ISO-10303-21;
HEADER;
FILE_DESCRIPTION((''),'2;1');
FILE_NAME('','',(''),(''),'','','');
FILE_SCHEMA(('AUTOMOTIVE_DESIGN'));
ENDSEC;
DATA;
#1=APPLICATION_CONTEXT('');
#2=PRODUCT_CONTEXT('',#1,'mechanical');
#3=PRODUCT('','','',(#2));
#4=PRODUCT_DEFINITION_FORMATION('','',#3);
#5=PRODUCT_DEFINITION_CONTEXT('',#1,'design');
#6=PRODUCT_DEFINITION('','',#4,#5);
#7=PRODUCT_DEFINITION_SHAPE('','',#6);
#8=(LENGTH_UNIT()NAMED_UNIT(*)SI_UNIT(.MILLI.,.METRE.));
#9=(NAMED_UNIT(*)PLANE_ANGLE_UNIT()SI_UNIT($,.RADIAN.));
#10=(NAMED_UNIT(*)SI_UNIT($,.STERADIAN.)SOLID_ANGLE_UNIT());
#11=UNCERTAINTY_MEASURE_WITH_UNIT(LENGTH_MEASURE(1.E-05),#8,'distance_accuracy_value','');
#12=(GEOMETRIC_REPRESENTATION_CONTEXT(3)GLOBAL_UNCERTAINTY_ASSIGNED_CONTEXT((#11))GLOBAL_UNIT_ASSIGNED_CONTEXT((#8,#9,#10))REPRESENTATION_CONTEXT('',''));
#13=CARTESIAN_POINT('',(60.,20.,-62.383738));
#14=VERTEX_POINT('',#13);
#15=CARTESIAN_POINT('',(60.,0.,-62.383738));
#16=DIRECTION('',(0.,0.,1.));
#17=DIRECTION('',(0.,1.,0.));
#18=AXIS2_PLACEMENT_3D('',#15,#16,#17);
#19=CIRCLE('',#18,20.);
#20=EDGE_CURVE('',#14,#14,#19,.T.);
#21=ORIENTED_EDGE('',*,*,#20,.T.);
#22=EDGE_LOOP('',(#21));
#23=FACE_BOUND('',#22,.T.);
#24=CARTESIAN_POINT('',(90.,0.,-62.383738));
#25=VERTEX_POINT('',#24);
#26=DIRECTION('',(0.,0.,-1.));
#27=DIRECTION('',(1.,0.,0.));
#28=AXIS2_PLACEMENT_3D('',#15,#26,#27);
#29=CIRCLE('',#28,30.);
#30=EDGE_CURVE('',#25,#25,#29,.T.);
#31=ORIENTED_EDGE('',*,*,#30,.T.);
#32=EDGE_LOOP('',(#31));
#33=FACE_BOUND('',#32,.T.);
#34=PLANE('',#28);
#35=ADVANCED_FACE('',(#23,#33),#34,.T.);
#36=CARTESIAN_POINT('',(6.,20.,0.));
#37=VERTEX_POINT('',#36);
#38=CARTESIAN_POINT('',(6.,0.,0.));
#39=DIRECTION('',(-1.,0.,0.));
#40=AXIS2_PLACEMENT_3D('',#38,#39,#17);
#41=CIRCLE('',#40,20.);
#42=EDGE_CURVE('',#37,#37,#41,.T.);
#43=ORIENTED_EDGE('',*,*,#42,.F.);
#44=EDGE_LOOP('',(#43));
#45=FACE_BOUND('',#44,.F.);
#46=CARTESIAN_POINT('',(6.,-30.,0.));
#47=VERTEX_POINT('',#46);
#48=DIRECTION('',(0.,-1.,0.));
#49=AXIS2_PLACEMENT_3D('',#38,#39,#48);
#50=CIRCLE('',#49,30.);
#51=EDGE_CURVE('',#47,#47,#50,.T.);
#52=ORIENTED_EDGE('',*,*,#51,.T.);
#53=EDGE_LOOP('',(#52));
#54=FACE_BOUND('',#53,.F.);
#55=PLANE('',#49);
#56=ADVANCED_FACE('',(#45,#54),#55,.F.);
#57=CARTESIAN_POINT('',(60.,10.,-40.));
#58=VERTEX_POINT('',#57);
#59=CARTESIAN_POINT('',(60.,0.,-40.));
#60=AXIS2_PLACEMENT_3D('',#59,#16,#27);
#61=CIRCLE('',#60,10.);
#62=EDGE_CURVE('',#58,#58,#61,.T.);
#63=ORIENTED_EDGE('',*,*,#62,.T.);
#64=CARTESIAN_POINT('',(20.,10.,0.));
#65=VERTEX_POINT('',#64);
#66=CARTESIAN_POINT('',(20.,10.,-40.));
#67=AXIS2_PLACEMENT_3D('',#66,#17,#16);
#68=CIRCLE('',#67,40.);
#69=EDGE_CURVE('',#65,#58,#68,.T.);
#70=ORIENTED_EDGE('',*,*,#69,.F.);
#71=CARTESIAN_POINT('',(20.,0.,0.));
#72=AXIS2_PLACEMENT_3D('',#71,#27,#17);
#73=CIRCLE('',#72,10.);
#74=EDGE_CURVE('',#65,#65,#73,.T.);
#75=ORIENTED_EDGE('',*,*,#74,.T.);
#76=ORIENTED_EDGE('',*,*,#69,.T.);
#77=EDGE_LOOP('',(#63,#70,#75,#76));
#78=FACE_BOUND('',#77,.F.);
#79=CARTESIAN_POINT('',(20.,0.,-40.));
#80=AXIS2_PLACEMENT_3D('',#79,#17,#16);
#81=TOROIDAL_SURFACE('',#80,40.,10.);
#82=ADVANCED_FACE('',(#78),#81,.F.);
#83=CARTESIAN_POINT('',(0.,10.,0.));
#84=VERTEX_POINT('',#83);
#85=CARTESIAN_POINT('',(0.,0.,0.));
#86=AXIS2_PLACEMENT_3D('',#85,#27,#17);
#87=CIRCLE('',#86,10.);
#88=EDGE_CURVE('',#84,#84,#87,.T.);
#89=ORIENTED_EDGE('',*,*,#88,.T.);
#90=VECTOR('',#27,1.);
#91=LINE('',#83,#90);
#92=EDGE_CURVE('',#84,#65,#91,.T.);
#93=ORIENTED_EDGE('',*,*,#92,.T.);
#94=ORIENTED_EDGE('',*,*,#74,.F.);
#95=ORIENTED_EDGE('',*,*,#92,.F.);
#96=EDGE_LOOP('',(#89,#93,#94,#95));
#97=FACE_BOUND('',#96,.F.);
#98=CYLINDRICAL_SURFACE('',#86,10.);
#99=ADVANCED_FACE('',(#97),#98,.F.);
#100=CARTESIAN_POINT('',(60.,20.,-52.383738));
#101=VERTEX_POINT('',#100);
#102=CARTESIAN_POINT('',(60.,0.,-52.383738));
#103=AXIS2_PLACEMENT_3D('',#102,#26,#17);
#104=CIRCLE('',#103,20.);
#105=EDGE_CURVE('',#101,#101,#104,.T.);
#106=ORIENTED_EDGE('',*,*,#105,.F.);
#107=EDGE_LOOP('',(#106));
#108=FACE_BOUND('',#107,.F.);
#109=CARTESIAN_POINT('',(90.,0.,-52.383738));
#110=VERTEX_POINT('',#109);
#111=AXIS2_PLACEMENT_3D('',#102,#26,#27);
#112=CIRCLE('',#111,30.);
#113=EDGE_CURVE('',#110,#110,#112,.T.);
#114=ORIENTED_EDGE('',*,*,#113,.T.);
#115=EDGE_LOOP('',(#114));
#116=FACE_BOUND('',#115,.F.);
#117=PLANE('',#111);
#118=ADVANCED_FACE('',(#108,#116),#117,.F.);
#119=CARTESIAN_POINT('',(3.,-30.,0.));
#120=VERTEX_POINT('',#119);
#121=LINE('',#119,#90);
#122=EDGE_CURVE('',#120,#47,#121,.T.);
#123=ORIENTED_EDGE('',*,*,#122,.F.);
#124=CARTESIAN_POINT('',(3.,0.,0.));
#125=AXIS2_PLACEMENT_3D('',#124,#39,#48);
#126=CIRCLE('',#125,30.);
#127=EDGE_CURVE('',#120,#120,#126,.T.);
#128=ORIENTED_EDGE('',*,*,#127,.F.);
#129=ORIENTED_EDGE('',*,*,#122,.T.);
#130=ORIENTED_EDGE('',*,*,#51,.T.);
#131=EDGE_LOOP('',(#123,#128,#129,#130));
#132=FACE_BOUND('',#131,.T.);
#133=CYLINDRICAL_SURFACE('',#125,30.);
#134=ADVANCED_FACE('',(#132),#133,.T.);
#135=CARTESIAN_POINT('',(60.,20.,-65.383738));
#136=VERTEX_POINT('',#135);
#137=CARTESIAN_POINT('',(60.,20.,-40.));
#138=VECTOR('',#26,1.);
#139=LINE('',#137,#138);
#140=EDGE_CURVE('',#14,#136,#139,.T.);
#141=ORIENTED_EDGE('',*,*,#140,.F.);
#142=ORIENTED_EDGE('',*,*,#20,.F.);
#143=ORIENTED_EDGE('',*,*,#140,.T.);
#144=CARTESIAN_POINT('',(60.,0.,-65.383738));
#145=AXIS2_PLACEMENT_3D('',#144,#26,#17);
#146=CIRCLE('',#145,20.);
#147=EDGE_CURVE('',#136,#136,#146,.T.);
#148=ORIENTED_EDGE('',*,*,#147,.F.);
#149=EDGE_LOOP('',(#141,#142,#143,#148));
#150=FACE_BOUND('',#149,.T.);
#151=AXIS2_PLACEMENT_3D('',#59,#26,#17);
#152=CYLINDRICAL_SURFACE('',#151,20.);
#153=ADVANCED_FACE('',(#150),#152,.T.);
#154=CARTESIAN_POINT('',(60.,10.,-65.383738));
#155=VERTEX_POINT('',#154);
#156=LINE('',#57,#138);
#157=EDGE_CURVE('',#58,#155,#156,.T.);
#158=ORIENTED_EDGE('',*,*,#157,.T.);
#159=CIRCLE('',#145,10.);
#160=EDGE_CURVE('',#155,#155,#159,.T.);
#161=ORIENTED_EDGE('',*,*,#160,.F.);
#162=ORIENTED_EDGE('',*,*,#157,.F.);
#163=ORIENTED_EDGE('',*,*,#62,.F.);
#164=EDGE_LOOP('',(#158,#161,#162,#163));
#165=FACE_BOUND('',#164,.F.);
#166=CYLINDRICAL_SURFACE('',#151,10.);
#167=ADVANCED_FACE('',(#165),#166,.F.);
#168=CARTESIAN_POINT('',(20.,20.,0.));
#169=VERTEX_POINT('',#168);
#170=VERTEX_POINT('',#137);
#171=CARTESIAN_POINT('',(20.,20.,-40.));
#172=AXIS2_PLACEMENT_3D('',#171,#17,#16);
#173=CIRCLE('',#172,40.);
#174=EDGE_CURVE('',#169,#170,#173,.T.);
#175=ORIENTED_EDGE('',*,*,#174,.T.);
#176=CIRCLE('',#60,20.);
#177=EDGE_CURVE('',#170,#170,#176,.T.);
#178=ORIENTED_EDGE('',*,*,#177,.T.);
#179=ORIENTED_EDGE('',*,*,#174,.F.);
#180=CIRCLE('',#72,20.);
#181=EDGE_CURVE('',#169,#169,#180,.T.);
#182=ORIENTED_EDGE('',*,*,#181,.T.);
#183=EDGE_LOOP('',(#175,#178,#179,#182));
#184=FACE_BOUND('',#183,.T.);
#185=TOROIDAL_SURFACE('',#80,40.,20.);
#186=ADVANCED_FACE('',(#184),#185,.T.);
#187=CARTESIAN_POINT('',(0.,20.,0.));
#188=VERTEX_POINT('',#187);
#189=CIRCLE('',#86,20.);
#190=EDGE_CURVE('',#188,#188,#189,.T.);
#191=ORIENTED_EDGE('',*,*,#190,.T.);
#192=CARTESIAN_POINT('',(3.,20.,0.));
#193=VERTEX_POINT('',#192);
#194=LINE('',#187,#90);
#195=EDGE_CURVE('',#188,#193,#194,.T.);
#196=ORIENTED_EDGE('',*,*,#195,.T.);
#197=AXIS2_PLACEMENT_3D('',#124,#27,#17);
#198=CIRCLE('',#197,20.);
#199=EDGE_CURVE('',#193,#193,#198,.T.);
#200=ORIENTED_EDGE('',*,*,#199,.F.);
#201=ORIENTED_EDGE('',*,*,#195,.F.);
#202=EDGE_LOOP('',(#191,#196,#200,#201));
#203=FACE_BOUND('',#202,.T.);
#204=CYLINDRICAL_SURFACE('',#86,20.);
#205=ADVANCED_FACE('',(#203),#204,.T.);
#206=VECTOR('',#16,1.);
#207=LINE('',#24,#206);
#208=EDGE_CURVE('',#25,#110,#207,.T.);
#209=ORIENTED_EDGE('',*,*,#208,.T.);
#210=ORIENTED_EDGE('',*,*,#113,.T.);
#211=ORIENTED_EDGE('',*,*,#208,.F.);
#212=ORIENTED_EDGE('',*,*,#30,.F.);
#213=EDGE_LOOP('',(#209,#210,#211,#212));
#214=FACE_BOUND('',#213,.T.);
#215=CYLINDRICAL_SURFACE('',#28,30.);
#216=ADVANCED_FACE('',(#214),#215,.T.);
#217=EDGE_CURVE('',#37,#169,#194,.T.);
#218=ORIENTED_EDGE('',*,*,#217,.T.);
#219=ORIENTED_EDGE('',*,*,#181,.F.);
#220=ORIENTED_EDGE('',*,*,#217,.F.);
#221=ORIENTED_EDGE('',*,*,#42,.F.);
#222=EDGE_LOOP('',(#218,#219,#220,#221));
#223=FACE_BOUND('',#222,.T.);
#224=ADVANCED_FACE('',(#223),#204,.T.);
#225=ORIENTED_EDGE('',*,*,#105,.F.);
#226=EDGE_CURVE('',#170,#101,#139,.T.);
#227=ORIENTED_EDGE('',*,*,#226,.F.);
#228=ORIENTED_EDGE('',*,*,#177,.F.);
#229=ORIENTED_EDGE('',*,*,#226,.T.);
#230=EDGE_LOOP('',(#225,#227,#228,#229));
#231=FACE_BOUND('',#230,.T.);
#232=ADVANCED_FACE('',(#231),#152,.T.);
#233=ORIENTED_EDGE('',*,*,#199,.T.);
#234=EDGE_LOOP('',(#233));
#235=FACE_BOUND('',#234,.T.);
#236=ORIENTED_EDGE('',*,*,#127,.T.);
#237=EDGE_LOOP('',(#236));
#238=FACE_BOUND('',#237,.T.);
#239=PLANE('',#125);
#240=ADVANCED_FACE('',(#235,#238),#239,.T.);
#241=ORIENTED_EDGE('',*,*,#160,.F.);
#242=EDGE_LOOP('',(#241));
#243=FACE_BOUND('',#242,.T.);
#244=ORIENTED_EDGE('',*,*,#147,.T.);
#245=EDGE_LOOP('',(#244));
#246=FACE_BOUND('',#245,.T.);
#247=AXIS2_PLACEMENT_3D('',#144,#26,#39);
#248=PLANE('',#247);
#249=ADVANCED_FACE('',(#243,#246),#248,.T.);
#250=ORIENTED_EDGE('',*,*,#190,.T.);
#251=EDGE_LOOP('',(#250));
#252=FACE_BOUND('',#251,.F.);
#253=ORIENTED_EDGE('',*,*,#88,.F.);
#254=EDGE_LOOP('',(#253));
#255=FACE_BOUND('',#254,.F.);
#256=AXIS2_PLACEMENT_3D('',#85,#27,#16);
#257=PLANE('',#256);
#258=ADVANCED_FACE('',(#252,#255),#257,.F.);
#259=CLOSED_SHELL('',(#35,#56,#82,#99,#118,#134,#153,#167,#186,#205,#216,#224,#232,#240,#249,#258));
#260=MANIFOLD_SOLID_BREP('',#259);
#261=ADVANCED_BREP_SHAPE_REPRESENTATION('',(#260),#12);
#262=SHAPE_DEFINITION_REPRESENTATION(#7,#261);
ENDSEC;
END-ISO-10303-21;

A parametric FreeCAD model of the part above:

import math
import FreeCAD as App
import Part
import Sketcher

V = App.Vector

doc = App.newDocument("Part")
body = doc.addObject("PartDesign::Body", "Body")

# Sketch on YZ plane
sketch1 = doc.addObject("Sketcher::SketchObject", "Sketch")
body.addObject(sketch1)
sketch1.AttachmentSupport = (doc.YZ_Plane, [""])
sketch1.MapMode = "FlatFace"
sketch1.addGeometry([
    Part.Circle(V(0, 0, 0), V(0, 0, 1), 20),
    Part.Circle(V(0, 0, 0), V(0, 0, 1), 10),
], False)
sketch1.addConstraint([
    Sketcher.Constraint("Coincident", 0, 3, -1, 1),
    Sketcher.Constraint("Coincident", 1, 3, -1, 1),
    Sketcher.Constraint("Diameter", 0, 40.0),
    Sketcher.Constraint("Diameter", 1, 20.0),
])

# Sketch on XZ plane
sketch2 = doc.addObject("Sketcher::SketchObject", "Sketch001")
body.addObject(sketch2)
sketch2.AttachmentSupport = (doc.XZ_Plane, [""])
sketch2.MapMode = "FlatFace"
sketch2.addGeometry([
    Part.LineSegment(V(0, 0, 0), V(20, 0, 0)),
    Part.ArcOfCircle(Part.Circle(V(20, -40, 0), V(0, 0, 1), 40), math.radians(0), math.radians(90)),
    Part.LineSegment(V(60, -40, 0), V(60, -65, 0)),
], False)
sketch2.addConstraint([
    Sketcher.Constraint("Tangent", 0, 2, 1, 2),
    Sketcher.Constraint("Tangent", 1, 1, 2, 1),
    Sketcher.Constraint("Horizontal", 0),
    Sketcher.Constraint("Vertical", 2),
    Sketcher.Constraint("Coincident", 0, 1, -1, 1),
    Sketcher.Constraint("Radius", 1, 40.0),
    Sketcher.Constraint("DistanceX", 0, 1, 0, 2, 20.0),
    Sketcher.Constraint("DistanceY", 2, 2, 2, 1, 25.383738),
])
doc.recompute()

additivepipe = doc.addObject("PartDesign::AdditivePipe", "AdditivePipe")
body.addObject(additivepipe)
additivepipe.Profile = sketch1
additivepipe.Spine = (sketch2, ["Edge1", "Edge2", "Edge3"])

# Sketch on YZ plane
sketch3 = doc.addObject("Sketcher::SketchObject", "Sketch002")
body.addObject(sketch3)
sketch3.AttachmentSupport = (doc.YZ_Plane, [""])
sketch3.MapMode = "FlatFace"
sketch3.AttachmentOffset = App.Placement(V(0, 0, 3), App.Rotation())
sketch3.addGeometry([
    Part.Circle(V(0, 0, 0), V(0, 0, 1), 30),
    Part.Circle(V(0, 0, 0), V(0, 0, 1), 20),
], False)
sketch3.addConstraint([
    Sketcher.Constraint("Coincident", 0, 3, -1, 1),
    Sketcher.Constraint("Coincident", 1, 3, -1, 1),
    Sketcher.Constraint("Diameter", 0, 60.0),
    Sketcher.Constraint("Diameter", 1, 40.0),
])
pad1 = doc.addObject("PartDesign::Pad", "Pad")
body.addObject(pad1)
pad1.Profile = sketch3
pad1.Length = 3

# Sketch on XY plane
sketch4 = doc.addObject("Sketcher::SketchObject", "Sketch003")
body.addObject(sketch4)
sketch4.AttachmentSupport = (doc.XY_Plane, [""])
sketch4.MapMode = "FlatFace"
sketch4.AttachmentOffset = App.Placement(V(0, 0, -62.383738), App.Rotation())
sketch4.addGeometry([
    Part.Circle(V(60, 0, 0), V(0, 0, 1), 30),
    Part.Circle(V(60, 0, 0), V(0, 0, 1), 20),
], False)
sketch4.addConstraint([
    Sketcher.Constraint("Coincident", 1, 3, 0, 3),
    Sketcher.Constraint("PointOnObject", 0, 3, -1),
    Sketcher.Constraint("Diameter", 0, 60.0),
    Sketcher.Constraint("Diameter", 1, 40.0),
    Sketcher.Constraint("DistanceX", -1, 1, 0, 3, 60.0),
])
pad2 = doc.addObject("PartDesign::Pad", "Pad001")
body.addObject(pad2)
pad2.Profile = sketch4
pad2.Length = 10

doc.recompute()
